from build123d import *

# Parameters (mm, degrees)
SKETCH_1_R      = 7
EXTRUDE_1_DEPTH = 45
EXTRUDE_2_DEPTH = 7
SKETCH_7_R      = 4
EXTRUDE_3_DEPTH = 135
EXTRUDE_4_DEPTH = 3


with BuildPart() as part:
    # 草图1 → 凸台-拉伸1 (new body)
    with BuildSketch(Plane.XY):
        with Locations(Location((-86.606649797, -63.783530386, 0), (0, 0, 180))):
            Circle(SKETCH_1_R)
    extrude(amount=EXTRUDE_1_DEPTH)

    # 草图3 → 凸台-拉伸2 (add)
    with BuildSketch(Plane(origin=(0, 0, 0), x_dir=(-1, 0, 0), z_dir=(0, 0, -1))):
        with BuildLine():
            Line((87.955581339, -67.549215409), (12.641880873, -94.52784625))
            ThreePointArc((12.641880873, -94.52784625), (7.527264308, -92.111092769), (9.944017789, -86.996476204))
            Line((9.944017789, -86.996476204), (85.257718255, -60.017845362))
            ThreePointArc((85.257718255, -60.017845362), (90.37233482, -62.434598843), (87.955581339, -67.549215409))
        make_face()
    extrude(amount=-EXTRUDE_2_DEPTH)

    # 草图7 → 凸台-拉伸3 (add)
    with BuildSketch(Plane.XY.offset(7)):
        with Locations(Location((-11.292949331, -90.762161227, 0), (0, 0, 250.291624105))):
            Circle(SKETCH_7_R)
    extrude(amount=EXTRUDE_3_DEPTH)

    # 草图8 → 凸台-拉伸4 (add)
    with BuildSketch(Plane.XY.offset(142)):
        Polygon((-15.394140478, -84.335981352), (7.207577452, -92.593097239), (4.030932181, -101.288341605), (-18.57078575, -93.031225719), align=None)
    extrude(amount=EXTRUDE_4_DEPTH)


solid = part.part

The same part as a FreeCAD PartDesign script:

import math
import FreeCAD as App
import Part
import Sketcher

doc = App.newDocument("Part")
params = doc.addObject("Spreadsheet::Sheet", "Params")
for row, (alias, value) in enumerate([
    ("sketch1_diameter", "14 mm"),
    ("pad1_length", "45 mm"),
    ("sketch2_radius", "4 mm"),
    ("sketch2_length", "80 mm"),
    ("pad2_length", "7 mm"),
    ("sketch3_diameter", "8 mm"),
    ("pad3_length", "135 mm"),
    ("pad4_length", "3 mm"),
], start=1):
    params.set(f"A{row}", alias)
    params.set(f"B{row}", "=" + value)
    params.setAlias(f"B{row}", alias)

body = doc.addObject("PartDesign::Body", "Body")

sketch1 = body.newObject("Sketcher::SketchObject", "Sketch")
sketch1.AttachmentSupport = (doc.getObject("XY_Plane"), [""])
sketch1.MapMode = "FlatFace"
sketch1.addGeometry(Part.Circle(App.Vector(-86.60665, -63.78353, 0), App.Vector(0, 0, 1), 7), False)
sketch1.addConstraint([
    Sketcher.Constraint("Diameter", 0, 14.0),
    Sketcher.Constraint("DistanceX", 0, 3, -1, 1, 86.60665),
    Sketcher.Constraint("DistanceY", 0, 3, -1, 1, 63.78353),
])
sketch1.setExpression("Constraints[0]", "Params.sketch1_diameter")
pad1 = body.newObject("PartDesign::Pad", "Pad")
pad1.Profile = sketch1
pad1.setExpression("Length", "Params.pad1_length")

sketch2 = body.newObject("Sketcher::SketchObject", "Sketch001")
sketch2.AttachmentSupport = (doc.getObject("XY_Plane"), [""])
sketch2.MapMode = "FlatFace"
sketch2.addGeometry([
    Part.LineSegment(App.Vector(-12.641881, -94.527846, 0), App.Vector(-87.955581, -67.549215, 0)),
    Part.ArcOfCircle(Part.Circle(App.Vector(-86.60665, -63.78353, 0), App.Vector(0, 0, 1), 4), math.radians(70.291624), math.radians(250.291624)),
    Part.LineSegment(App.Vector(-85.257718, -60.017845, 0), App.Vector(-9.944018, -86.996476, 0)),
    Part.ArcOfCircle(Part.Circle(App.Vector(-11.292949, -90.762161, 0), App.Vector(0, 0, 1), 4), math.radians(-109.708376), math.radians(70.291624)),
], False)
sketch2.addConstraint([
    Sketcher.Constraint("Tangent", 0, 2, 1, 2),
    Sketcher.Constraint("Tangent", 1, 1, 2, 1),
    Sketcher.Constraint("Tangent", 2, 2, 3, 2),
    Sketcher.Constraint("Tangent", 3, 1, 0, 1),
    Sketcher.Constraint("Equal", 1, 3),
    Sketcher.Constraint("Radius", 1, 4.0),
    Sketcher.Constraint("Distance", 0, 80.0),
    Sketcher.Constraint("DistanceY", 3, 1, 1, 1, 34.510001),
    Sketcher.Constraint("DistanceX", 1, 3, -1, 1, 86.60665),
    Sketcher.Constraint("DistanceY", 1, 3, -1, 1, 63.78353),
])
sketch2.setExpression("Constraints[5]", "Params.sketch2_radius")
sketch2.setExpression("Constraints[6]", "Params.sketch2_length")
pad2 = body.newObject("PartDesign::Pad", "Pad001")
pad2.Profile = sketch2
pad2.setExpression("Length", "Params.pad2_length")

sketch3 = body.newObject("Sketcher::SketchObject", "Sketch002")
sketch3.AttachmentSupport = (doc.getObject("XY_Plane"), [""])
sketch3.MapMode = "FlatFace"
sketch3.AttachmentOffset = App.Placement(App.Vector(0, 0, 7), App.Rotation())
sketch3.addGeometry(Part.Circle(App.Vector(-11.292949, -90.762161, 0), App.Vector(0, 0, 1), 4), False)
sketch3.addConstraint([
    Sketcher.Constraint("Diameter", 0, 8.0),
    Sketcher.Constraint("DistanceX", 0, 3, -1, 1, 11.292949),
    Sketcher.Constraint("DistanceY", 0, 3, -1, 1, 90.762161),
])
sketch3.setExpression("Constraints[0]", "Params.sketch3_diameter")
pad3 = body.newObject("PartDesign::Pad", "Pad002")
pad3.Profile = sketch3
pad3.setExpression("Length", "Params.pad3_length")

sketch4 = body.newObject("Sketcher::SketchObject", "Sketch003")
sketch4.AttachmentSupport = (doc.getObject("XY_Plane"), [""])
sketch4.MapMode = "FlatFace"
sketch4.AttachmentOffset = App.Placement(App.Vector(0, 0, 142), App.Rotation())
sketch4.addGeometry([
    Part.LineSegment(App.Vector(7.207577, -92.593097, 0), App.Vector(-15.39414, -84.335981, 0)),
    Part.LineSegment(App.Vector(-15.39414, -84.335981, 0), App.Vector(-18.570786, -93.031226, 0)),
    Part.LineSegment(App.Vector(-18.570786, -93.031226, 0), App.Vector(4.030932, -101.288342, 0)),
    Part.LineSegment(App.Vector(4.030932, -101.288342, 0), App.Vector(7.207577, -92.593097, 0)),
], False)
sketch4.addConstraint([
    Sketcher.Constraint("Coincident", 0, 2, 1, 1),
    Sketcher.Constraint("Coincident", 1, 2, 2, 1),
    Sketcher.Constraint("Coincident", 2, 2, 3, 1),
    Sketcher.Constraint("Coincident", 3, 2, 0, 1),
    Sketcher.Constraint("Perpendicular", 0, 1),
    Sketcher.Constraint("Perpendicular", 1, 2),
    Sketcher.Constraint("Perpendicular", 2, 3),
    Sketcher.Constraint("Distance", 1, 9.25734),
    Sketcher.Constraint("DistanceX", 0, 2, -1, 1, 15.39414),
    Sketcher.Constraint("DistanceY", 0, 2, -1, 1, 84.335981),
    Sketcher.Constraint("DistanceY", 2, 2, -1, 1, 101.288342),
    Sketcher.Constraint("DistanceY", 1, 2, 3, 2, 0.438128),
])
pad4 = body.newObject("PartDesign::Pad", "Pad003")
pad4.Profile = sketch4
pad4.setExpression("Length", "Params.pad4_length")

doc.recompute()
